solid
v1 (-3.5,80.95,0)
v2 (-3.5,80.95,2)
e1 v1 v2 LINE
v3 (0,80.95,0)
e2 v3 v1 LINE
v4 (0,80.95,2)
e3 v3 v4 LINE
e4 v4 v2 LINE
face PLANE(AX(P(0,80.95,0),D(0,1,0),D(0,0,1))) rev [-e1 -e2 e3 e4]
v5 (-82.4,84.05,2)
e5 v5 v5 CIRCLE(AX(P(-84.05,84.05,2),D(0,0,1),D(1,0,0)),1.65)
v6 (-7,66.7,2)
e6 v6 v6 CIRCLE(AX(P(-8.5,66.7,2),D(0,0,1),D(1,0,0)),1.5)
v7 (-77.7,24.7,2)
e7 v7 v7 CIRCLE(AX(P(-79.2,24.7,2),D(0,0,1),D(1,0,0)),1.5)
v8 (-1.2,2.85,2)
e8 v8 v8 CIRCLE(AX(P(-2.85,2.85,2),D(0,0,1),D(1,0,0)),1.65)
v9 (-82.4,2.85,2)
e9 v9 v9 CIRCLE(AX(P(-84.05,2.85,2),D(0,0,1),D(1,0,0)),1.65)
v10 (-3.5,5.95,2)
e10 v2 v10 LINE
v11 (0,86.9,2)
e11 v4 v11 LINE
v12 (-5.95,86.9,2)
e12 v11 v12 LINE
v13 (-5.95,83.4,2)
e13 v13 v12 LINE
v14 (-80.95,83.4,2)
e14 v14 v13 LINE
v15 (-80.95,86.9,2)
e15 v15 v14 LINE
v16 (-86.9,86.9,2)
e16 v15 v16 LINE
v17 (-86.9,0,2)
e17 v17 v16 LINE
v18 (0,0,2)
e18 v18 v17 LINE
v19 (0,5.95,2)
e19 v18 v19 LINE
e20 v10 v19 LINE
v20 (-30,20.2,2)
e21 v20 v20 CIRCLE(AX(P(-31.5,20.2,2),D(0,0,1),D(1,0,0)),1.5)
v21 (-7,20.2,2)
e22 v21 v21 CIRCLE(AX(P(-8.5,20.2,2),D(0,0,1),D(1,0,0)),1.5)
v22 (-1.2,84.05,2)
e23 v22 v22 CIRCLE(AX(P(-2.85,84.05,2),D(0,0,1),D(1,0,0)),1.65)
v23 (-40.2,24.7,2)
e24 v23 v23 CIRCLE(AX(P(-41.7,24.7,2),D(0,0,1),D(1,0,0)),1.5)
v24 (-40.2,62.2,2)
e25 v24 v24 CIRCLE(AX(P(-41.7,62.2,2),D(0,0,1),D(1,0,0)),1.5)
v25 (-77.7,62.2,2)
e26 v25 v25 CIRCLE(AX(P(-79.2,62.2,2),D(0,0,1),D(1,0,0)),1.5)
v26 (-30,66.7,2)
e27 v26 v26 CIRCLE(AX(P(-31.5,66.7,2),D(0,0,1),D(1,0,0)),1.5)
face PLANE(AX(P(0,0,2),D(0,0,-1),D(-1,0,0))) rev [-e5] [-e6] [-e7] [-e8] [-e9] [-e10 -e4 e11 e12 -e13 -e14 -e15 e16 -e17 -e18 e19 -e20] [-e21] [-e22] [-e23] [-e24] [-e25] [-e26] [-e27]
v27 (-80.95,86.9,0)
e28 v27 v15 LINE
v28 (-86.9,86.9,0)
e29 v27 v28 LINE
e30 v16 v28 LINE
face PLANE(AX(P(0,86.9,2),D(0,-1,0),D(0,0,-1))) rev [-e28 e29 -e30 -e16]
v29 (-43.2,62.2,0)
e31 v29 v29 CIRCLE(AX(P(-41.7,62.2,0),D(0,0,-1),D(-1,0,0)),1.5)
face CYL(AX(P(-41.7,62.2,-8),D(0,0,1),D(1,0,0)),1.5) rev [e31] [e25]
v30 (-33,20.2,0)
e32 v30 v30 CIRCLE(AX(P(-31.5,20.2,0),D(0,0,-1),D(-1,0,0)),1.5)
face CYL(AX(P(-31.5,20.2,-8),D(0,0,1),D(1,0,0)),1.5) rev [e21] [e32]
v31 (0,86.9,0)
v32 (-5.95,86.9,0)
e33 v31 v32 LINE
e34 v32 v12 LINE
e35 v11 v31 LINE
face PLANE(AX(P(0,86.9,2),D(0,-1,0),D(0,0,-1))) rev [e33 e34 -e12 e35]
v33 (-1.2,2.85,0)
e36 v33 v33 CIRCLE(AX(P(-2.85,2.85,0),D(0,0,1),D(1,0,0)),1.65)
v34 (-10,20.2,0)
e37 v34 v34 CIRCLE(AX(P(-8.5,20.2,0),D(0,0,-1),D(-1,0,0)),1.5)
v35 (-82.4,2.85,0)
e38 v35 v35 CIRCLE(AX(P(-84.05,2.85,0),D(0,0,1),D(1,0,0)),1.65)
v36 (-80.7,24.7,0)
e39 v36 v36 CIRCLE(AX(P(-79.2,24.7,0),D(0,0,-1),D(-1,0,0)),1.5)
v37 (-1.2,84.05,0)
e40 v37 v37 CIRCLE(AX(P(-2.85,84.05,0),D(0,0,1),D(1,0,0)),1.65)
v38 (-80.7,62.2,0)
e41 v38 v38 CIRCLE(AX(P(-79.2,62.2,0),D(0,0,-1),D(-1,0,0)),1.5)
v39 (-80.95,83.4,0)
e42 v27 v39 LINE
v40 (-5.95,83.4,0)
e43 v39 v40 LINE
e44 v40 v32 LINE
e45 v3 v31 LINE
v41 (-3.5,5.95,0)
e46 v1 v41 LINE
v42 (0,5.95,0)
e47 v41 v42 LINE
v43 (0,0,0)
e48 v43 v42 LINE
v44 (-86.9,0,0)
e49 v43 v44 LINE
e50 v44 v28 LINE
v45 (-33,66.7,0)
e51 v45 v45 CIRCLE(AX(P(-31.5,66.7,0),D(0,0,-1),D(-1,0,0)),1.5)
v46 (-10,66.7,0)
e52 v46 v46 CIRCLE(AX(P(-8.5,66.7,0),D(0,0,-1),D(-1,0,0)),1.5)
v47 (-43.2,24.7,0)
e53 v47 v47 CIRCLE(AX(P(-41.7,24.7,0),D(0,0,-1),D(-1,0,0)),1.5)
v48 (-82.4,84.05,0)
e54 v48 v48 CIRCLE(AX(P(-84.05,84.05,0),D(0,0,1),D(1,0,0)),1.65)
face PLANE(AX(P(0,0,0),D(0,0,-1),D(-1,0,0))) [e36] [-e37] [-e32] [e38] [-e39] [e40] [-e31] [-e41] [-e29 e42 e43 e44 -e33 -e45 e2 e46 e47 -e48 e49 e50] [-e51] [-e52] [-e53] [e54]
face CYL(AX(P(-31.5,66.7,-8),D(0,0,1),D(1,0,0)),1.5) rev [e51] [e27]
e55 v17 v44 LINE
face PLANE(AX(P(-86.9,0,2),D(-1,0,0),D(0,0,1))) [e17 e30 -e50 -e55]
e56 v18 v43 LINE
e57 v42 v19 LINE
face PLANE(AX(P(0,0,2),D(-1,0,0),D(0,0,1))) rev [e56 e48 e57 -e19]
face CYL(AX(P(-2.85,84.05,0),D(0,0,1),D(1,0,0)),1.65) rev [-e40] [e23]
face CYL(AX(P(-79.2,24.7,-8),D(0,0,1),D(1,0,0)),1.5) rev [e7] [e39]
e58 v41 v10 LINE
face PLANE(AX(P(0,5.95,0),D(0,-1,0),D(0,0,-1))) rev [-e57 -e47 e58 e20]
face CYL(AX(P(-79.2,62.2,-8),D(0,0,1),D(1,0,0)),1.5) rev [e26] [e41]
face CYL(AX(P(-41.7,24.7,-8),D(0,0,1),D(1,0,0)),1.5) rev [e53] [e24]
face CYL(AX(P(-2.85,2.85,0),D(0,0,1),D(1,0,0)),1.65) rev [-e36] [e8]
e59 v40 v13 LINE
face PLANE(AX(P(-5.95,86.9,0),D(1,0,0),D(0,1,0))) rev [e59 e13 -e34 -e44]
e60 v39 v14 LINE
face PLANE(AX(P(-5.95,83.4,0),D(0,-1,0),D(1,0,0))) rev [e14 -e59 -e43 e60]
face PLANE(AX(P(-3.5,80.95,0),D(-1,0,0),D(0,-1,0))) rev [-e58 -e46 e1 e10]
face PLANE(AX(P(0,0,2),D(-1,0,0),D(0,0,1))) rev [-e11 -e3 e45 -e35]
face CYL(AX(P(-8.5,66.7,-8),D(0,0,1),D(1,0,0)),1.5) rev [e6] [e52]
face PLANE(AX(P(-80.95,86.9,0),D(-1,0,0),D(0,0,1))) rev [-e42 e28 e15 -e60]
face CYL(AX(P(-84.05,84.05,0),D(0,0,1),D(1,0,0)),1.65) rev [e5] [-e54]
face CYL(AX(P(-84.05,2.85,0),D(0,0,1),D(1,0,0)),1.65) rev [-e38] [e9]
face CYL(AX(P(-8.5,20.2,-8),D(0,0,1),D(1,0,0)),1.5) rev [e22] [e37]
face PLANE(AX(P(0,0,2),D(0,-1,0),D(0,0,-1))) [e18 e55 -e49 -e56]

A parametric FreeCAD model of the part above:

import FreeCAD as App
import Part
import Sketcher

V = App.Vector
Q = App.Units.Quantity

doc = App.newDocument("Part")
params = doc.addObject("Spreadsheet::Sheet", "Params")
for row, (alias, value) in enumerate([
    ("sketch1_width", "86.9 mm"),
    ("pad1_length", "2 mm"),
    ("sketch2_diameter", "3.3 mm"),
    ("sketch3_diameter", "3 mm"),
    ("pocket2_length", "10 mm"),
    ("sketch4_diameter", "3 mm"),
    ("pocket3_length", "10 mm"),
    ("sketch5_width", "75 mm"),
    ("sketch5_width2", "3.5 mm"),
], start=1):
    params.set(f"A{row}", alias)
    params.set(f"B{row}", "=" + value)
    params.setAlias(f"B{row}", alias)

body = doc.addObject("PartDesign::Body", "Body")

# Sketch on XY plane
sketch1 = body.newObject("Sketcher::SketchObject", "Sketch")
sketch1.AttachmentSupport = (doc.getObject("XY_Plane"), [""])
sketch1.MapMode = "FlatFace"
sketch1.addGeometry(Part.LineSegment(V(-87, 0, 0), V(0, 0, 0)), False)
sketch1.addGeometry(Part.LineSegment(V(0, 0, 0), V(0, 87, 0)), False)
sketch1.addGeometry(Part.LineSegment(V(0, 87, 0), V(-87, 87, 0)), False)
sketch1.addGeometry(Part.LineSegment(V(-87, 87, 0), V(-87, 0, 0)), False)
sketch1.addConstraint(Sketcher.Constraint("Coincident", 0, 2, 1, 1))
sketch1.addConstraint(Sketcher.Constraint("Coincident", 1, 2, 2, 1))
sketch1.addConstraint(Sketcher.Constraint("Coincident", 2, 2, 3, 1))
sketch1.addConstraint(Sketcher.Constraint("Coincident", 3, 2, 0, 1))
sketch1.addConstraint(Sketcher.Constraint("Horizontal", 0))
sketch1.addConstraint(Sketcher.Constraint("Vertical", 1))
sketch1.addConstraint(Sketcher.Constraint("Horizontal", 2))
sketch1.addConstraint(Sketcher.Constraint("Vertical", 3))
sketch1.addConstraint(Sketcher.Constraint("Coincident", 0, 2, -1, 1))
sketch1.addConstraint(Sketcher.Constraint("Equal", 2, 1))
sketch1.addConstraint(Sketcher.Constraint("DistanceX", 0, 1, 0, 2, Q("86.9 mm")))
sketch1.setExpression("Constraints[10]", "Params.sketch1_width")
pad1 = body.newObject("PartDesign::Pad", "Pad")
pad1.Profile = sketch1
pad1.setExpression("Length", "Params.pad1_length")

# Sketch on XY plane
sketch2 = body.newObject("Sketcher::SketchObject", "Sketch001")
sketch2.AttachmentSupport = (doc.getObject("XY_Plane"), [""])
sketch2.MapMode = "FlatFace"
sketch2.AttachmentOffset = App.Placement(V(0, 0, 2), App.Rotation())
sketch2.addGeometry(Part.Circle(V(-84, 2.9, 0), V(0, 0, 1), 1.6), False)
sketch2.addGeometry(Part.Circle(V(-2.9, 2.9, 0), V(0, 0, 1), 1.6), False)
sketch2.addGeometry(Part.Circle(V(-2.9, 84, 0), V(0, 0, 1), 1.6), False)
sketch2.addGeometry(Part.Circle(V(-84, 84, 0), V(0, 0, 1), 1.6), False)
sketch2.addConstraint(Sketcher.Constraint("Equal", 0, 1))
sketch2.addConstraint(Sketcher.Constraint("Equal", 1, 2))
sketch2.addConstraint(Sketcher.Constraint("Equal", 2, 3))
sketch2.addConstraint(Sketcher.Constraint("Horizontal", 0, 3, 1, 3))
sketch2.addConstraint(Sketcher.Constraint("Horizontal", 2, 3, 3, 3))
sketch2.addConstraint(Sketcher.Constraint("Vertical", 1, 3, 2, 3))
sketch2.addConstraint(Sketcher.Constraint("Vertical", 0, 3, 3, 3))
sketch2.addConstraint(Sketcher.Constraint("Diameter", 0, Q("3.3 mm")))
sketch2.addConstraint(Sketcher.Constraint("DistanceX", 0, 3, 1, 3, Q("81.2 mm")))
sketch2.addConstraint(Sketcher.Constraint("DistanceY", 1, 3, 2, 3, Q("81.2 mm")))
sketch2.addConstraint(Sketcher.Constraint("DistanceX", 0, 3, -1, 1, Q("84.05 mm")))
sketch2.addConstraint(Sketcher.Constraint("DistanceY", -1, 1, 0, 3, Q("2.85 mm")))
sketch2.setExpression("Constraints[7]", "Params.sketch2_diameter")
pocket1 = body.newObject("PartDesign::Pocket", "Pocket")
pocket1.Profile = sketch2
pocket1.Type = "ThroughAll"

# Sketch on XY plane
sketch3 = body.newObject("Sketcher::SketchObject", "Sketch002")
sketch3.AttachmentSupport = (doc.getObject("XY_Plane"), [""])
sketch3.MapMode = "FlatFace"
sketch3.AttachmentOffset = App.Placement(V(0, 0, 2), App.Rotation())
sketch3.addGeometry(Part.Circle(V(-79.2, 62.2, 0), V(0, 0, 1), 1.5), False)
sketch3.addGeometry(Part.Circle(V(-41.7, 62.2, 0), V(0, 0, 1), 1.5), False)
sketch3.addGeometry(Part.Circle(V(-41.7, 24.7, 0), V(0, 0, 1), 1.5), False)
sketch3.addGeometry(Part.Circle(V(-79.2, 24.7, 0), V(0, 0, 1), 1.5), False)
sketch3.addConstraint(Sketcher.Constraint("Equal", 0, 1))
sketch3.addConstraint(Sketcher.Constraint("Equal", 1, 2))
sketch3.addConstraint(Sketcher.Constraint("Equal", 2, 3))
sketch3.addConstraint(Sketcher.Constraint("Horizontal", 0, 3, 1, 3))
sketch3.addConstraint(Sketcher.Constraint("Horizontal", 2, 3, 3, 3))
sketch3.addConstraint(Sketcher.Constraint("Vertical", 1, 3, 2, 3))
sketch3.addConstraint(Sketcher.Constraint("Vertical", 0, 3, 3, 3))
sketch3.addConstraint(Sketcher.Constraint("Diameter", 0, Q("3 mm")))
sketch3.addConstraint(Sketcher.Constraint("DistanceX", 0, 3, -1, 1, Q("79.2 mm")))
sketch3.addConstraint(Sketcher.Constraint("DistanceY", -1, 1, 0, 3, Q("62.2 mm")))
sketch3.addConstraint(Sketcher.Constraint("DistanceX", 1, 3, -1, 1, Q("41.7 mm")))
sketch3.addConstraint(Sketcher.Constraint("DistanceY", -1, 1, 2, 3, Q("24.7 mm")))
sketch3.setExpression("Constraints[7]", "Params.sketch3_diameter")
pocket2 = body.newObject("PartDesign::Pocket", "Pocket001")
pocket2.Profile = sketch3
pocket2.setExpression("Length", "Params.pocket2_length")

# Sketch on XY plane
sketch4 = body.newObject("Sketcher::SketchObject", "Sketch003")
sketch4.AttachmentSupport = (doc.getObject("XY_Plane"), [""])
sketch4.MapMode = "FlatFace"
sketch4.AttachmentOffset = App.Placement(V(0, 0, 2), App.Rotation())
sketch4.addGeometry(Part.Circle(V(-31.5, 66.7, 0), V(0, 0, 1), 1.5), False)
sketch4.addGeometry(Part.Circle(V(-8.5, 66.7, 0), V(0, 0, 1), 1.5), False)
sketch4.addGeometry(Part.Circle(V(-8.5, 20.2, 0), V(0, 0, 1), 1.5), False)
sketch4.addGeometry(Part.Circle(V(-31.5, 20.2, 0), V(0, 0, 1), 1.5), False)
sketch4.addConstraint(Sketcher.Constraint("Equal", 0, 1))
sketch4.addConstraint(Sketcher.Constraint("Equal", 1, 2))
sketch4.addConstraint(Sketcher.Constraint("Equal", 2, 3))
sketch4.addConstraint(Sketcher.Constraint("Horizontal", 0, 3, 1, 3))
sketch4.addConstraint(Sketcher.Constraint("Horizontal", 2, 3, 3, 3))
sketch4.addConstraint(Sketcher.Constraint("Vertical", 1, 3, 2, 3))
sketch4.addConstraint(Sketcher.Constraint("Vertical", 0, 3, 3, 3))
sketch4.addConstraint(Sketcher.Constraint("Diameter", 0, Q("3 mm")))
sketch4.addConstraint(Sketcher.Constraint("DistanceX", 0, 3, 1, 3, Q("23 mm")))
sketch4.addConstraint(Sketcher.Constraint("DistanceX", 0, 3, -1, 1, Q("31.5 mm")))
sketch4.addConstraint(Sketcher.Constraint("DistanceY", -1, 1, 0, 3, Q("66.7 mm")))
sketch4.addConstraint(Sketcher.Constraint("DistanceY", -1, 1, 2, 3, Q("20.2 mm")))
sketch4.setExpression("Constraints[7]", "Params.sketch4_diameter")
pocket3 = body.newObject("PartDesign::Pocket", "Pocket002")
pocket3.Profile = sketch4
pocket3.setExpression("Length", "Params.pocket3_length")

# Sketch on XY plane
sketch5 = body.newObject("Sketcher::SketchObject", "Sketch004")
sketch5.AttachmentSupport = (doc.getObject("XY_Plane"), [""])
sketch5.MapMode = "FlatFace"
sketch5.AttachmentOffset = App.Placement(V(0, 0, 2), App.Rotation())
sketch5.addGeometry(Part.LineSegment(V(-3.5, 81, 0), V(-3.5, 6, 0)), False)
sketch5.addGeometry(Part.LineSegment(V(-3.5, 6, 0), V(0, 6, 0)), False)
sketch5.addGeometry(Part.LineSegment(V(0, 6, 0), V(0, 81, 0)), False)
sketch5.addGeometry(Part.LineSegment(V(0, 81, 0), V(-3.5, 81, 0)), False)
sketch5.addGeometry(Part.LineSegment(V(-81, 86.9, 0), V(-81, 83.4, 0)), False)
sketch5.addGeometry(Part.LineSegment(V(-81, 83.4, 0), V(-6, 83.4, 0)), False)
sketch5.addGeometry(Part.LineSegment(V(-6, 83.4, 0), V(-6, 86.9, 0)), False)
sketch5.addGeometry(Part.LineSegment(V(-6, 86.9, 0), V(-81, 86.9, 0)), False)
sketch5.addConstraint(Sketcher.Constraint("Coincident", 0, 2, 1, 1))
sketch5.addConstraint(Sketcher.Constraint("Coincident", 1, 2, 2, 1))
sketch5.addConstraint(Sketcher.Constraint("Coincident", 2, 2, 3, 1))
sketch5.addConstraint(Sketcher.Constraint("Coincident", 3, 2, 0, 1))
sketch5.addConstraint(Sketcher.Constraint("Coincident", 4, 2, 5, 1))
sketch5.addConstraint(Sketcher.Constraint("Coincident", 5, 2, 6, 1))
sketch5.addConstraint(Sketcher.Constraint("Coincident", 6, 2, 7, 1))
sketch5.addConstraint(Sketcher.Constraint("Coincident", 7, 2, 4, 1))
sketch5.addConstraint(Sketcher.Constraint("Vertical", 0))
sketch5.addConstraint(Sketcher.Constraint("Horizontal", 1))
sketch5.addConstraint(Sketcher.Constraint("Vertical", 2))
sketch5.addConstraint(Sketcher.Constraint("Horizontal", 3))
sketch5.addConstraint(Sketcher.Constraint("Vertical", 4))
sketch5.addConstraint(Sketcher.Constraint("Horizontal", 5))
sketch5.addConstraint(Sketcher.Constraint("Vertical", 6))
sketch5.addConstraint(Sketcher.Constraint("Horizontal", 7))
sketch5.addConstraint(Sketcher.Constraint("PointOnObject", 1, 2, -2))
sketch5.addConstraint(Sketcher.Constraint("Equal", 7, 0))
sketch5.addConstraint(Sketcher.Constraint("Equal", 3, 4))
sketch5.addConstraint(Sketcher.Constraint("DistanceX", 5, 1, 5, 2, Q("75 mm")))
sketch5.addConstraint(Sketcher.Constraint("DistanceX", 1, 1, 1, 2, Q("3.5 mm")))
sketch5.addConstraint(Sketcher.Constraint("DistanceY", -1, 1, 4, 2, Q("83.4 mm")))
sketch5.addConstraint(Sketcher.Constraint("DistanceY", -1, 1, 0, 2, Q("5.95 mm")))
sketch5.addConstraint(Sketcher.Constraint("DistanceX", 4, 2, -1, 1, Q("80.95 mm")))
sketch5.setExpression("Constraints[19]", "Params.sketch5_width")
sketch5.setExpression("Constraints[20]", "Params.sketch5_width2")
pocket4 = body.newObject("PartDesign::Pocket", "Pocket003")
pocket4.Profile = sketch5
pocket4.Type = "ThroughAll"

doc.recompute()
